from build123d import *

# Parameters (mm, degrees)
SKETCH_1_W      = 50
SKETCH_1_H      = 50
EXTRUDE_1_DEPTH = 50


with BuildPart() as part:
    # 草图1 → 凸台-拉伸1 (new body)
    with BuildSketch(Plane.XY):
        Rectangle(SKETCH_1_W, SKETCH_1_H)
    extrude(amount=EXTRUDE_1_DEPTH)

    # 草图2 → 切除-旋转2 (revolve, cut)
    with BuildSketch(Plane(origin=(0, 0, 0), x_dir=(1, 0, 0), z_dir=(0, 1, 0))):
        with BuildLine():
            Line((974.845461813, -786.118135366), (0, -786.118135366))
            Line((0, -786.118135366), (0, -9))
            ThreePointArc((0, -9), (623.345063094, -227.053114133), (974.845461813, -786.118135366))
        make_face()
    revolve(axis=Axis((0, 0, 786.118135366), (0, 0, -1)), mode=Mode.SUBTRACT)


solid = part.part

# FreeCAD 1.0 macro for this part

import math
import FreeCAD as App
import Part
import Sketcher


def add_polygon(sketch, points):
    """Adds a closed chain of lines whose ends are joined by coincident constraints."""
    first, n = sketch.GeometryCount, len(points)
    for a, b in zip(points, points[1:] + points[:1]):
        sketch.addGeometry(Part.LineSegment(App.Vector(*a, 0), App.Vector(*b, 0)), False)
    for i in range(n):
        sketch.addConstraint(Sketcher.Constraint("Coincident", first + i, 2, first + (i + 1) % n, 1))

doc = App.newDocument("Part")
params = doc.addObject("Spreadsheet::Sheet", "Params")
for row, (alias, value) in enumerate([
    ("sketch1_width", "50 mm"),
    ("pad1_length", "50 mm"),
    ("sketch2_radius", "1000 mm"),
    ("groove_angle", "360 deg"),
], start=1):
    params.set(f"A{row}", alias)
    params.set(f"B{row}", "=" + value)
    params.setAlias(f"B{row}", alias)

body = doc.addObject("PartDesign::Body", "Body")

sketch1 = body.newObject("Sketcher::SketchObject", "Sketch")
sketch1.AttachmentSupport = (doc.getObject("XY_Plane"), [""])
sketch1.MapMode = "FlatFace"
add_polygon(sketch1, [(-25, 25), (-25, -25), (25, -25), (25, 25)])
sketch1.addConstraint(Sketcher.Constraint("Vertical", 0))
sketch1.addConstraint(Sketcher.Constraint("Horizontal", 1))
sketch1.addConstraint(Sketcher.Constraint("Vertical", 2))
sketch1.addConstraint(Sketcher.Constraint("Horizontal", 3))
sketch1.addConstraint(Sketcher.Constraint("Symmetric", 0, 2, 2, 2, -1, 1))
sketch1.addConstraint(Sketcher.Constraint("Equal", 3, 0))
sketch1.addConstraint(Sketcher.Constraint("DistanceX", 1, 1, 1, 2, 50.0))
sketch1.setExpression("Constraints[10]", "Params.sketch1_width")
pad1 = body.newObject("PartDesign::Pad", "Pad")
pad1.Profile = sketch1
pad1.setExpression("Length", "Params.pad1_length")

sketch2 = body.newObject("Sketcher::SketchObject", "Sketch001")
sketch2.AttachmentSupport = (doc.getObject("XZ_Plane"), [""])
sketch2.MapMode = "FlatFace"
sketch2.addGeometry(Part.LineSegment(App.Vector(0, 786, 0), App.Vector(975, 786, 0)), False)
sketch2.addGeometry(Part.ArcOfCircle(Part.Circle(App.Vector(0, 1009, 0), App.Vector(0, 0, 1), 1000), math.radians(-90), math.radians(-13)), False)
sketch2.addGeometry(Part.LineSegment(App.Vector(0, 9, 0), App.Vector(0, 786, 0)), False)
sketch2.addConstraint(Sketcher.Constraint("Coincident", 0, 2, 1, 2))
sketch2.addConstraint(Sketcher.Constraint("Coincident", 1, 1, 2, 1))
sketch2.addConstraint(Sketcher.Constraint("Coincident", 2, 2, 0, 1))
sketch2.addConstraint(Sketcher.Constraint("Horizontal", 0))
sketch2.addConstraint(Sketcher.Constraint("Vertical", 2))
sketch2.addConstraint(Sketcher.Constraint("PointOnObject", 1, 3, -2))
sketch2.addConstraint(Sketcher.Constraint("PointOnObject", 2, 2, -2))
sketch2.addConstraint(Sketcher.Constraint("Radius", 1, 1000.0))
sketch2.addConstraint(Sketcher.Constraint("DistanceY", -1, 1, 1, 3, 1009.0))
sketch2.addConstraint(Sketcher.Constraint("DistanceX", 0, 1, 0, 2, 974.845462))
sketch2.setExpression("Constraints[7]", "Params.sketch2_radius")
groove = body.newObject("PartDesign::Groove", "Groove")
groove.Profile = sketch2
groove.ReferenceAxis = (sketch2, ["V_Axis"])
groove.setExpression("Angle", "Params.groove_angle")

doc.recompute()
